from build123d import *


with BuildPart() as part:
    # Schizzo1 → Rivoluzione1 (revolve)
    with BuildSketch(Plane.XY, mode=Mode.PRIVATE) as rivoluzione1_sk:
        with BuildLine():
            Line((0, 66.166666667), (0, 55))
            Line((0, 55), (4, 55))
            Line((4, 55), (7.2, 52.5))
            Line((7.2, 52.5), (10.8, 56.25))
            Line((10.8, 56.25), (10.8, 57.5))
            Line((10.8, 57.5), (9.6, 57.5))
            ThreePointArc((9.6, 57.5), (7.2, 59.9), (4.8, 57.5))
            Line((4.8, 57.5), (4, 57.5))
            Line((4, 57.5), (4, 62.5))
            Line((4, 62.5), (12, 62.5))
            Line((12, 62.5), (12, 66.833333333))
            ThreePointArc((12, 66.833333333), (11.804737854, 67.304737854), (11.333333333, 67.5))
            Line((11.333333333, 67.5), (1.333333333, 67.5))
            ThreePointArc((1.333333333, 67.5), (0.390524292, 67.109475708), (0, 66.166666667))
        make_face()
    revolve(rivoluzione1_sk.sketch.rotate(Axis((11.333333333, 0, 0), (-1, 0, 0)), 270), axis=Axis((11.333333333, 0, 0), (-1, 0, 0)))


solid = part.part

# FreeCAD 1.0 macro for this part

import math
import FreeCAD as App
import Part
import Sketcher
Q = App.Units.Quantity

doc = App.newDocument("Part")
body = doc.addObject("PartDesign::Body", "Body")

# Sketch on XY plane
sketch1 = body.newObject("Sketcher::SketchObject", "Sketch")
sketch1.AttachmentSupport = (doc.getObject("XY_Plane"), [""])
sketch1.MapMode = "FlatFace"
sketch1.addGeometry([
    Part.LineSegment(App.Vector(0, 66.166667, 0), App.Vector(0, 55, 0)),  # 0
    Part.LineSegment(App.Vector(0, 55, 0), App.Vector(4, 55, 0)),  # 1
    Part.LineSegment(App.Vector(4, 55, 0), App.Vector(7.2, 52.5, 0)),  # 2
    Part.LineSegment(App.Vector(7.2, 52.5, 0), App.Vector(10.8, 56.25, 0)),  # 3
    Part.LineSegment(App.Vector(10.8, 56.25, 0), App.Vector(10.8, 57.5, 0)),  # 4
    Part.LineSegment(App.Vector(10.8, 57.5, 0), App.Vector(9.6, 57.5, 0)),  # 5
    Part.ArcOfCircle(Part.Circle(App.Vector(7.2, 57.5, 0), App.Vector(0, 0, 1), 2.4), math.radians(0), math.radians(180)),  # 6
    Part.LineSegment(App.Vector(4.8, 57.5, 0), App.Vector(4, 57.5, 0)),  # 7
    Part.LineSegment(App.Vector(4, 57.5, 0), App.Vector(4, 62.5, 0)),  # 8
    Part.LineSegment(App.Vector(4, 62.5, 0), App.Vector(12, 62.5, 0)),  # 9
    Part.LineSegment(App.Vector(12, 62.5, 0), App.Vector(12, 66.833333, 0)),  # 10
    Part.ArcOfCircle(Part.Circle(App.Vector(11.333333, 66.833333, 0), App.Vector(0, 0, 1), 0.666667), math.radians(0), math.radians(90)),  # 11
    Part.LineSegment(App.Vector(11.333333, 67.5, 0), App.Vector(1.333333, 67.5, 0)),  # 12
    Part.ArcOfCircle(Part.Circle(App.Vector(1.333333, 66.166667, 0), App.Vector(0, 0, 1), 1.333333), math.radians(90), math.radians(180)),  # 13
], False)
sketch1.addConstraint([
    Sketcher.Constraint("Coincident", 0, 2, 1, 1),
    Sketcher.Constraint("Coincident", 1, 2, 2, 1),
    Sketcher.Constraint("Coincident", 2, 2, 3, 1),
    Sketcher.Constraint("Coincident", 3, 2, 4, 1),
    Sketcher.Constraint("Coincident", 4, 2, 5, 1),
    Sketcher.Constraint("Coincident", 5, 2, 6, 1),
    Sketcher.Constraint("Coincident", 6, 2, 7, 1),
    Sketcher.Constraint("Coincident", 7, 2, 8, 1),
    Sketcher.Constraint("Coincident", 8, 2, 9, 1),
    Sketcher.Constraint("Coincident", 9, 2, 10, 1),
    Sketcher.Constraint("Tangent", 10, 2, 11, 1),
    Sketcher.Constraint("Tangent", 11, 2, 12, 1),
    Sketcher.Constraint("Tangent", 12, 2, 13, 1),
    Sketcher.Constraint("Tangent", 13, 2, 0, 1),
    Sketcher.Constraint("Vertical", 0),
    Sketcher.Constraint("Horizontal", 1),
    Sketcher.Constraint("Vertical", 4),
    Sketcher.Constraint("Horizontal", 5),
    Sketcher.Constraint("Horizontal", 7),
    Sketcher.Constraint("Vertical", 8),
    Sketcher.Constraint("Horizontal", 9),
    Sketcher.Constraint("Vertical", 10),
    Sketcher.Constraint("Horizontal", 12),
    Sketcher.Constraint("PointOnObject", 0, 2, -2),
    Sketcher.Constraint("Horizontal", 6, 3, 4, 2),
    Sketcher.Constraint("Horizontal", 5, 2, 6, 2),
    Sketcher.Constraint("Vertical", 6, 3, 2, 2),
    Sketcher.Constraint("Vertical", 1, 2, 7, 2),
    Sketcher.Constraint("Radius", 6, Q("2.4 mm")),
    Sketcher.Constraint("DistanceX", 1, 1, 1, 2, Q("4 mm")),
    Sketcher.Constraint("DistanceX", 9, 1, 9, 2, Q("8 mm")),
    Sketcher.Constraint("DistanceX", 12, 2, 12, 1, Q("10 mm")),
    Sketcher.Constraint("DistanceY", 8, 1, 8, 2, Q("5 mm")),
    Sketcher.Constraint("DistanceX", 5, 2, 5, 1, Q("1.2 mm")),
    Sketcher.Constraint("DistanceX", 7, 2, 7, 1, Q("0.8 mm")),
    Sketcher.Constraint("DistanceY", -1, 1, 0, 2, Q("55 mm")),
    Sketcher.Constraint("DistanceY", 2, 2, 6, 3, Q("5 mm")),
    Sketcher.Constraint("DistanceY", 9, 2, 11, 2, Q("5 mm")),
    Sketcher.Constraint("DistanceY", 4, 1, 4, 2, Q("1.25 mm")),
    Sketcher.Constraint("DistanceY", -1, 1, 6, 3, Q("57.5 mm")),
    Sketcher.Constraint("Radius", 11, Q("0.666667 mm")),
])
revolution = body.newObject("PartDesign::Revolution", "Revolution")
revolution.Profile = sketch1
revolution.ReferenceAxis = (sketch1, ["H_Axis"])
revolution.Angle = 360

doc.recompute()
